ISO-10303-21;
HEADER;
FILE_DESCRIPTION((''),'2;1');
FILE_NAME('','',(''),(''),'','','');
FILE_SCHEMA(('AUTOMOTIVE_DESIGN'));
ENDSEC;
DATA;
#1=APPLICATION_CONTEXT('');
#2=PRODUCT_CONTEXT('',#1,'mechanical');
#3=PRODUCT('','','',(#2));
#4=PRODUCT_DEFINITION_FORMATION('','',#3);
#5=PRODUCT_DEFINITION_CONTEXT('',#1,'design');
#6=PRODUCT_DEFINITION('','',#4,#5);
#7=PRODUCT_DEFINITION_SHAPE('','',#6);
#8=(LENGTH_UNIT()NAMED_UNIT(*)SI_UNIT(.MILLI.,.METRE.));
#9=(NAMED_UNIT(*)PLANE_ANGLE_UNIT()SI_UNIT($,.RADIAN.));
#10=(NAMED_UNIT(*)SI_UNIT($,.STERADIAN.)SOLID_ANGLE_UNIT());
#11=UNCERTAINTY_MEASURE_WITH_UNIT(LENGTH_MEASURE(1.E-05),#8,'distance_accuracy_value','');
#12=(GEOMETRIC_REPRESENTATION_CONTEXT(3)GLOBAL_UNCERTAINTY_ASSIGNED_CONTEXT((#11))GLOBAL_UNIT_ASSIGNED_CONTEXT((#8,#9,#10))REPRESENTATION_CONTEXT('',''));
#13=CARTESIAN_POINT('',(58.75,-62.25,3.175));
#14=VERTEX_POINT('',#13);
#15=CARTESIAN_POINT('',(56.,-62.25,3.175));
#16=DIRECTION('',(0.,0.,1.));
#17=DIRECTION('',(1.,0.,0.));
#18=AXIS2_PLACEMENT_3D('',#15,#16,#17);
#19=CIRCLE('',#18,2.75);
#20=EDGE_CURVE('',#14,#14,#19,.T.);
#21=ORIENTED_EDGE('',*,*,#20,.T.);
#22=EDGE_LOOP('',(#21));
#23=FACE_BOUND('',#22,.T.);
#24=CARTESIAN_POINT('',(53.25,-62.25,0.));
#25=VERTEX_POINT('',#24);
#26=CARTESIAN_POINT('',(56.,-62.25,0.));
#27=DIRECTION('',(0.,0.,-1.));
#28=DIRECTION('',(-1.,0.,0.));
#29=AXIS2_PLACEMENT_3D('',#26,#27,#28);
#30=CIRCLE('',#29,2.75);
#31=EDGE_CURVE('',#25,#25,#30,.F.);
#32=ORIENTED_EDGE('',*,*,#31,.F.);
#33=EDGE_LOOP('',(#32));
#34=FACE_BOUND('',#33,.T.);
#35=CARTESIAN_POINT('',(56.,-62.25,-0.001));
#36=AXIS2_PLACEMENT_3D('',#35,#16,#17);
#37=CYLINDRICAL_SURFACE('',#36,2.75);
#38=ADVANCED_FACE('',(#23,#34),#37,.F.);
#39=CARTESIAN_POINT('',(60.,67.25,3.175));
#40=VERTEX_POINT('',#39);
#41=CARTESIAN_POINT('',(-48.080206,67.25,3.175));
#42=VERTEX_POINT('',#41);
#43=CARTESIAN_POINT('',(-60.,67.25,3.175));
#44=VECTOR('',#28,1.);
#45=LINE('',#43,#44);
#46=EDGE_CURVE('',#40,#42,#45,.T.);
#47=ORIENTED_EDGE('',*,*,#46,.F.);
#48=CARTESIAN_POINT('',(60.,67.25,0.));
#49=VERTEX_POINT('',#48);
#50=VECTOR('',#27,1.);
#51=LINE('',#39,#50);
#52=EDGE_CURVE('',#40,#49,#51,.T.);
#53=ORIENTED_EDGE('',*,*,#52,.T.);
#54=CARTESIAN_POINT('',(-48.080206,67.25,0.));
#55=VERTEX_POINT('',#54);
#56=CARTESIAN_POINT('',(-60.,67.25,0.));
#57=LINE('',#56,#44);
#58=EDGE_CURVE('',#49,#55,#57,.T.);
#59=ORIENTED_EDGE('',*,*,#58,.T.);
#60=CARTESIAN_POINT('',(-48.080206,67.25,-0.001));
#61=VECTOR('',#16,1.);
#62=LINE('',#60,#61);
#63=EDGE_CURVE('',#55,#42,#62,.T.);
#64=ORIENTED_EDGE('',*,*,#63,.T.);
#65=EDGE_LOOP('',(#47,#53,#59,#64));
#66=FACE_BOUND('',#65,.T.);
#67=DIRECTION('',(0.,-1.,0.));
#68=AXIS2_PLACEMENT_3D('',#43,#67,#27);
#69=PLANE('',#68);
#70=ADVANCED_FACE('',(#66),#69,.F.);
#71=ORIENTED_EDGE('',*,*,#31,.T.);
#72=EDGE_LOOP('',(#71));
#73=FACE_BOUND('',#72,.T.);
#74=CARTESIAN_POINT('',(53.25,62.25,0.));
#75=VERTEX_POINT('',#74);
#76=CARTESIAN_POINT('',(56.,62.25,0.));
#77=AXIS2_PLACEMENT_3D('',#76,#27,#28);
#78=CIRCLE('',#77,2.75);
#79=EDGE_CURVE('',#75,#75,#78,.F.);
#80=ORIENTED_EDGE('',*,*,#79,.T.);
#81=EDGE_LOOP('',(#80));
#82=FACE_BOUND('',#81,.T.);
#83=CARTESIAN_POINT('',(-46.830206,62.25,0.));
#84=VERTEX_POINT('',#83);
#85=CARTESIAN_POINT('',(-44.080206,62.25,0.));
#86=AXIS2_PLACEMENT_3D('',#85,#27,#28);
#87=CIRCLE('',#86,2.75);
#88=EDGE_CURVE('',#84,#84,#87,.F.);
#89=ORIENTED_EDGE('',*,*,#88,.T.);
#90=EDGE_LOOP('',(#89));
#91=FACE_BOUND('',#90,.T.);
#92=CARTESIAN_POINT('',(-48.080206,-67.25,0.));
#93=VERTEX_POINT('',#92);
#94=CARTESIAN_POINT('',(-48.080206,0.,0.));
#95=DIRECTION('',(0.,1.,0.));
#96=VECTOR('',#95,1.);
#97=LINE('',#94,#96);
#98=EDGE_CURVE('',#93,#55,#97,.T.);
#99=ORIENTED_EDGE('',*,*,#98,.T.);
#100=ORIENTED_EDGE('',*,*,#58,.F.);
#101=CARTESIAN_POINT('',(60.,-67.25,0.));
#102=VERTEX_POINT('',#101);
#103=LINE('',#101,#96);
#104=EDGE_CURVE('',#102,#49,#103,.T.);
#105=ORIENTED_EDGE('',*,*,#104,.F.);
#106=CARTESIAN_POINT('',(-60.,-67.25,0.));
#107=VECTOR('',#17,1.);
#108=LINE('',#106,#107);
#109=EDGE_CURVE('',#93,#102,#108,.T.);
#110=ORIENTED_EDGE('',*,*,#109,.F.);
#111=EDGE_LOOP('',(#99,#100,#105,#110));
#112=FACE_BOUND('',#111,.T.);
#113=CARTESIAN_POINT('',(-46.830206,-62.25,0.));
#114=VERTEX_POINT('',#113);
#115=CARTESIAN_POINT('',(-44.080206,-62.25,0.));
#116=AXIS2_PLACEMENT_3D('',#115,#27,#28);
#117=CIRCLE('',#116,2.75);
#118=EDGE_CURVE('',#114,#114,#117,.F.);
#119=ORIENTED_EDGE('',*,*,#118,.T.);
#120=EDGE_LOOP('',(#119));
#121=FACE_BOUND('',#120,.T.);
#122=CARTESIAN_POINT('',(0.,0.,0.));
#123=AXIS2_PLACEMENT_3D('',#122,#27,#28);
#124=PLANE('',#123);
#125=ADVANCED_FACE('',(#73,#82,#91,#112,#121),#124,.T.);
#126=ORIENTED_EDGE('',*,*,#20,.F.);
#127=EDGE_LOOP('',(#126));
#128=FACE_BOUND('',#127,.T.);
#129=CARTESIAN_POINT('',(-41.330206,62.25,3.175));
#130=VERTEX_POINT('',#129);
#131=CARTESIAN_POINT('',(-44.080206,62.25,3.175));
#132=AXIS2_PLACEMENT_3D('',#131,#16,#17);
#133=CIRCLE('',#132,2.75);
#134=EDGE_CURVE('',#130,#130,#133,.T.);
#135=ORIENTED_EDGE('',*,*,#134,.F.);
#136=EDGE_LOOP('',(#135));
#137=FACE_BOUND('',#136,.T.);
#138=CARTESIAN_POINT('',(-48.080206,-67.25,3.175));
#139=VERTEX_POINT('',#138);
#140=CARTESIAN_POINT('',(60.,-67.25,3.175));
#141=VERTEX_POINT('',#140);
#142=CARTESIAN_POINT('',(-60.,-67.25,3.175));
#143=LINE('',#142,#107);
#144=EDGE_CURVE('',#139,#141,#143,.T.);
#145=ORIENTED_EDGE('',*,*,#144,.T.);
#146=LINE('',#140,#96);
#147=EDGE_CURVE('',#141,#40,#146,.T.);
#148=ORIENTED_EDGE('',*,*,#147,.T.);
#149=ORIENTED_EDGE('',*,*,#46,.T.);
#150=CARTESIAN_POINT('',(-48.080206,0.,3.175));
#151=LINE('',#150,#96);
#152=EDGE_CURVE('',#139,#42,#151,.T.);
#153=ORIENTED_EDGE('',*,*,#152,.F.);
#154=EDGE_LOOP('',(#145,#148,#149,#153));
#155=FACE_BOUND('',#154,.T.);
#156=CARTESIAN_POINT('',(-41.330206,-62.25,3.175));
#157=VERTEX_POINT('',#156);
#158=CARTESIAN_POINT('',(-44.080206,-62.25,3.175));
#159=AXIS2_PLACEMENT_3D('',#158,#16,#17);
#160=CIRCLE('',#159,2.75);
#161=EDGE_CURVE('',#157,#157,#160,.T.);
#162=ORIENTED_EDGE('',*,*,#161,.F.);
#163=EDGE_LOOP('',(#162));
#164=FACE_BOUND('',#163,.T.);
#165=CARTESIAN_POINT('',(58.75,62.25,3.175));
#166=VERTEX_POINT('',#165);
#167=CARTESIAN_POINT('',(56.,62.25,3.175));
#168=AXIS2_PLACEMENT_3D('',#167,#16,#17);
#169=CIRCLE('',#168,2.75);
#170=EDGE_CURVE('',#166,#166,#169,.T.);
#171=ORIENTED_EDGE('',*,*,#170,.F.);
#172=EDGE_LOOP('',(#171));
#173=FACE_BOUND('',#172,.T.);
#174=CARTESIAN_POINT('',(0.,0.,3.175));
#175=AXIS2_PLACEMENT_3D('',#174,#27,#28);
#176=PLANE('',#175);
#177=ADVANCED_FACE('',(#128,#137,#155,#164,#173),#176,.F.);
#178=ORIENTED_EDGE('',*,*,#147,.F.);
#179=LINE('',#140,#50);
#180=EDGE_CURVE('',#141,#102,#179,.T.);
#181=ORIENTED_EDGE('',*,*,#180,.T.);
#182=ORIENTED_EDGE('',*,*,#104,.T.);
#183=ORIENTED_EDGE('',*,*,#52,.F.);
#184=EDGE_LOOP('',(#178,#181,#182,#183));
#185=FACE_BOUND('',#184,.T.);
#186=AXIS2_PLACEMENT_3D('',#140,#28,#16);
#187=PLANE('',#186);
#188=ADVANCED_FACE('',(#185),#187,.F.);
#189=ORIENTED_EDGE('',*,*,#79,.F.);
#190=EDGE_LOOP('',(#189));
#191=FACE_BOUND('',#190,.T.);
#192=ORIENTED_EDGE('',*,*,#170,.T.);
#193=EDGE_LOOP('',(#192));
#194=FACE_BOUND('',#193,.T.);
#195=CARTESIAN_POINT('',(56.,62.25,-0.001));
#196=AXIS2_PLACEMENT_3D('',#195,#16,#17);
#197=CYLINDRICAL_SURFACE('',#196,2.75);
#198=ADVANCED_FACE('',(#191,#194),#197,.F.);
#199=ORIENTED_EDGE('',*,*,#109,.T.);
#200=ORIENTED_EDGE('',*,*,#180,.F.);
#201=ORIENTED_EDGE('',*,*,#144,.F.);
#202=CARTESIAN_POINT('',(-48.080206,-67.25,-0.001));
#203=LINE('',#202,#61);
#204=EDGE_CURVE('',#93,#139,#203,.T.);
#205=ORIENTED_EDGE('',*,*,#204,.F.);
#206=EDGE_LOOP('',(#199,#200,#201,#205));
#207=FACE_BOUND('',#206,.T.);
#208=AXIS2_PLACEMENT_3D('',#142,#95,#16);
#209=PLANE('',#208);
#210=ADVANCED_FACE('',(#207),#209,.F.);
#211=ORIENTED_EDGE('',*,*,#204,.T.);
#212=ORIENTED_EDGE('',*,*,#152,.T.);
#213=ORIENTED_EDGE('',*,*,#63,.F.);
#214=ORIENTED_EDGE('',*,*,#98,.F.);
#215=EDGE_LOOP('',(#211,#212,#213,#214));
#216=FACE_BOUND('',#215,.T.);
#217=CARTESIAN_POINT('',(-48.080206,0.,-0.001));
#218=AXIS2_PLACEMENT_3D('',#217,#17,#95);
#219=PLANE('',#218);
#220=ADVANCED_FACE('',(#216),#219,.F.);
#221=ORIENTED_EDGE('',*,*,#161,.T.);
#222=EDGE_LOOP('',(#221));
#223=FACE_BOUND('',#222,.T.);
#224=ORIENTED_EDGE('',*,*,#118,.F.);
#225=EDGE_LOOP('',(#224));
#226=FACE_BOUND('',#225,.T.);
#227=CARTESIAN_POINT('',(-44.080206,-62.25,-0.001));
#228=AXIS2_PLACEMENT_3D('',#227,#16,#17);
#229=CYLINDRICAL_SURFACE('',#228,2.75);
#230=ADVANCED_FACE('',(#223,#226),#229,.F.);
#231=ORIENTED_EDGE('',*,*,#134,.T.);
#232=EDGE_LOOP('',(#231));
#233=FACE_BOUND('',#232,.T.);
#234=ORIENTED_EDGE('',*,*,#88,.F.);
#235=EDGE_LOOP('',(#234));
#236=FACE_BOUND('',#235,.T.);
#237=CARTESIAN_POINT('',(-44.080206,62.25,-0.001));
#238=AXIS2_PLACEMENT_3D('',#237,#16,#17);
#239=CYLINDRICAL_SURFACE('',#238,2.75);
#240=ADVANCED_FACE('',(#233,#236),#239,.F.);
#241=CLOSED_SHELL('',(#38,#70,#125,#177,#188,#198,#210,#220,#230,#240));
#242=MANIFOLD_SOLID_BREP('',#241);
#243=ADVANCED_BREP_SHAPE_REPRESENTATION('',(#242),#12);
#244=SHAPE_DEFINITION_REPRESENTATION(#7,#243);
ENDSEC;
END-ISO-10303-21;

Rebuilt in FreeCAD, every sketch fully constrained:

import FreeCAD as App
import Part
import Sketcher
from FreeCAD import Vector

doc = App.newDocument("Part")
body = doc.addObject("PartDesign::Body", "Body")

sketch1 = body.newObject("Sketcher::SketchObject", "Sketch")
sketch1.AttachmentSupport = (doc.getObject("XY_Plane"), [""])
sketch1.MapMode = "FlatFace"
sketch1.addGeometry([
    Part.LineSegment(Vector(-60, 67, 0), Vector(-60, -67, 0)),
    Part.LineSegment(Vector(-60, -67, 0), Vector(60, -67, 0)),
    Part.LineSegment(Vector(60, -67, 0), Vector(60, 67, 0)),
    Part.LineSegment(Vector(60, 67, 0), Vector(-60, 67, 0)),
], False)
sketch1.addConstraint([
    Sketcher.Constraint("Coincident", 0, 2, 1, 1),
    Sketcher.Constraint("Coincident", 1, 2, 2, 1),
    Sketcher.Constraint("Coincident", 2, 2, 3, 1),
    Sketcher.Constraint("Coincident", 3, 2, 0, 1),
    Sketcher.Constraint("Vertical", 0),
    Sketcher.Constraint("Horizontal", 1),
    Sketcher.Constraint("Vertical", 2),
    Sketcher.Constraint("Horizontal", 3),
    Sketcher.Constraint("Symmetric", 0, 2, 2, 2, -1, 1),
    Sketcher.Constraint("DistanceX", 1, 1, 1, 2, 120.0),
    Sketcher.Constraint("DistanceY", 0, 2, 0, 1, 134.5),
])
pad1 = body.newObject("PartDesign::Pad", "Pad")
pad1.Profile = sketch1
pad1.Length = 3.175

sketch2 = body.newObject("Sketcher::SketchObject", "Sketch001")
sketch2.AttachmentSupport = (doc.getObject("XY_Plane"), [""])
sketch2.MapMode = "FlatFace"
sketch2.AttachmentOffset = App.Placement(Vector(0, 0, 3.175), App.Rotation())
sketch2.addGeometry([
    Part.LineSegment(Vector(-60, 67, 0), Vector(-60, -67, 0)),
    Part.LineSegment(Vector(-60, -67, 0), Vector(-48, -67, 0)),
    Part.LineSegment(Vector(-48, -67, 0), Vector(-48, 67, 0)),
    Part.LineSegment(Vector(-48, 67, 0), Vector(-60, 67, 0)),
], False)
sketch2.addConstraint([
    Sketcher.Constraint("Coincident", 0, 2, 1, 1),
    Sketcher.Constraint("Coincident", 1, 2, 2, 1),
    Sketcher.Constraint("Coincident", 2, 2, 3, 1),
    Sketcher.Constraint("Coincident", 3, 2, 0, 1),
    Sketcher.Constraint("Vertical", 0),
    Sketcher.Constraint("Horizontal", 1),
    Sketcher.Constraint("Vertical", 2),
    Sketcher.Constraint("Horizontal", 3),
    Sketcher.Constraint("DistanceY", 0, 2, 0, 1, 134.5),
    Sketcher.Constraint("DistanceX", 0, 2, -1, 1, 60.0),
    Sketcher.Constraint("DistanceY", 0, 2, -1, 1, 67.25),
    Sketcher.Constraint("DistanceX", 1, 1, 1, 2, 11.919794),
])
pocket1 = body.newObject("PartDesign::Pocket", "Pocket")
pocket1.Profile = sketch2
pocket1.Type = "UpToFirst"

sketch3 = body.newObject("Sketcher::SketchObject", "Sketch002")
sketch3.AttachmentSupport = (doc.getObject("XY_Plane"), [""])
sketch3.MapMode = "FlatFace"
sketch3.AttachmentOffset = App.Placement(Vector(0, 0, 3.175), App.Rotation())
sketch3.addGeometry(Part.Circle(Vector(-44.1, 62.2, 0), Vector(0, 0, 1), 2.8), False)
sketch3.addConstraint([
    Sketcher.Constraint("Diameter", 0, 5.5),
    Sketcher.Constraint("DistanceY", -1, 1, 0, 3, 62.25),
    Sketcher.Constraint("DistanceX", 0, 3, -1, 1, 44.080206),
])
pocket2 = body.newObject("PartDesign::Pocket", "Pocket001")
pocket2.Profile = sketch3
pocket2.Type = "UpToFirst"

sketch4 = body.newObject("Sketcher::SketchObject", "Sketch003")
sketch4.AttachmentSupport = (doc.getObject("XY_Plane"), [""])
sketch4.MapMode = "FlatFace"
sketch4.AttachmentOffset = App.Placement(Vector(0, 0, 3.175), App.Rotation())
sketch4.addGeometry(Part.Circle(Vector(56, -62.2, 0), Vector(0, 0, 1), 2.8), False)
sketch4.addConstraint([
    Sketcher.Constraint("Diameter", 0, 5.5),
    Sketcher.Constraint("DistanceX", -1, 1, 0, 3, 56.0),
    Sketcher.Constraint("DistanceY", 0, 3, -1, 1, 62.25),
])
pocket3 = body.newObject("PartDesign::Pocket", "Pocket002")
pocket3.Profile = sketch4
pocket3.Type = "UpToFirst"

sketch5 = body.newObject("Sketcher::SketchObject", "Sketch004")
sketch5.AttachmentSupport = (doc.getObject("XY_Plane"), [""])
sketch5.MapMode = "FlatFace"
sketch5.AttachmentOffset = App.Placement(Vector(0, 0, 3.175), App.Rotation())
sketch5.addGeometry(Part.Circle(Vector(-44.1, -62.2, 0), Vector(0, 0, 1), 2.8), False)
sketch5.addConstraint([
    Sketcher.Constraint("Diameter", 0, 5.5),
    Sketcher.Constraint("DistanceY", 0, 3, -1, 1, 62.25),
    Sketcher.Constraint("DistanceX", 0, 3, -1, 1, 44.080206),
])
pocket4 = body.newObject("PartDesign::Pocket", "Pocket003")
pocket4.Profile = sketch5
pocket4.Type = "UpToFirst"

sketch6 = body.newObject("Sketcher::SketchObject", "Sketch005")
sketch6.AttachmentSupport = (doc.getObject("XY_Plane"), [""])
sketch6.MapMode = "FlatFace"
sketch6.AttachmentOffset = App.Placement(Vector(0, 0, 3.175), App.Rotation())
sketch6.addGeometry(Part.Circle(Vector(56, 62.2, 0), Vector(0, 0, 1), 2.8), False)
sketch6.addConstraint([
    Sketcher.Constraint("Diameter", 0, 5.5),
    Sketcher.Constraint("DistanceX", -1, 1, 0, 3, 56.0),
    Sketcher.Constraint("DistanceY", -1, 1, 0, 3, 62.25),
])
pocket5 = body.newObject("PartDesign::Pocket", "Pocket004")
pocket5.Profile = sketch6
pocket5.Type = "UpToFirst"

doc.recompute()
